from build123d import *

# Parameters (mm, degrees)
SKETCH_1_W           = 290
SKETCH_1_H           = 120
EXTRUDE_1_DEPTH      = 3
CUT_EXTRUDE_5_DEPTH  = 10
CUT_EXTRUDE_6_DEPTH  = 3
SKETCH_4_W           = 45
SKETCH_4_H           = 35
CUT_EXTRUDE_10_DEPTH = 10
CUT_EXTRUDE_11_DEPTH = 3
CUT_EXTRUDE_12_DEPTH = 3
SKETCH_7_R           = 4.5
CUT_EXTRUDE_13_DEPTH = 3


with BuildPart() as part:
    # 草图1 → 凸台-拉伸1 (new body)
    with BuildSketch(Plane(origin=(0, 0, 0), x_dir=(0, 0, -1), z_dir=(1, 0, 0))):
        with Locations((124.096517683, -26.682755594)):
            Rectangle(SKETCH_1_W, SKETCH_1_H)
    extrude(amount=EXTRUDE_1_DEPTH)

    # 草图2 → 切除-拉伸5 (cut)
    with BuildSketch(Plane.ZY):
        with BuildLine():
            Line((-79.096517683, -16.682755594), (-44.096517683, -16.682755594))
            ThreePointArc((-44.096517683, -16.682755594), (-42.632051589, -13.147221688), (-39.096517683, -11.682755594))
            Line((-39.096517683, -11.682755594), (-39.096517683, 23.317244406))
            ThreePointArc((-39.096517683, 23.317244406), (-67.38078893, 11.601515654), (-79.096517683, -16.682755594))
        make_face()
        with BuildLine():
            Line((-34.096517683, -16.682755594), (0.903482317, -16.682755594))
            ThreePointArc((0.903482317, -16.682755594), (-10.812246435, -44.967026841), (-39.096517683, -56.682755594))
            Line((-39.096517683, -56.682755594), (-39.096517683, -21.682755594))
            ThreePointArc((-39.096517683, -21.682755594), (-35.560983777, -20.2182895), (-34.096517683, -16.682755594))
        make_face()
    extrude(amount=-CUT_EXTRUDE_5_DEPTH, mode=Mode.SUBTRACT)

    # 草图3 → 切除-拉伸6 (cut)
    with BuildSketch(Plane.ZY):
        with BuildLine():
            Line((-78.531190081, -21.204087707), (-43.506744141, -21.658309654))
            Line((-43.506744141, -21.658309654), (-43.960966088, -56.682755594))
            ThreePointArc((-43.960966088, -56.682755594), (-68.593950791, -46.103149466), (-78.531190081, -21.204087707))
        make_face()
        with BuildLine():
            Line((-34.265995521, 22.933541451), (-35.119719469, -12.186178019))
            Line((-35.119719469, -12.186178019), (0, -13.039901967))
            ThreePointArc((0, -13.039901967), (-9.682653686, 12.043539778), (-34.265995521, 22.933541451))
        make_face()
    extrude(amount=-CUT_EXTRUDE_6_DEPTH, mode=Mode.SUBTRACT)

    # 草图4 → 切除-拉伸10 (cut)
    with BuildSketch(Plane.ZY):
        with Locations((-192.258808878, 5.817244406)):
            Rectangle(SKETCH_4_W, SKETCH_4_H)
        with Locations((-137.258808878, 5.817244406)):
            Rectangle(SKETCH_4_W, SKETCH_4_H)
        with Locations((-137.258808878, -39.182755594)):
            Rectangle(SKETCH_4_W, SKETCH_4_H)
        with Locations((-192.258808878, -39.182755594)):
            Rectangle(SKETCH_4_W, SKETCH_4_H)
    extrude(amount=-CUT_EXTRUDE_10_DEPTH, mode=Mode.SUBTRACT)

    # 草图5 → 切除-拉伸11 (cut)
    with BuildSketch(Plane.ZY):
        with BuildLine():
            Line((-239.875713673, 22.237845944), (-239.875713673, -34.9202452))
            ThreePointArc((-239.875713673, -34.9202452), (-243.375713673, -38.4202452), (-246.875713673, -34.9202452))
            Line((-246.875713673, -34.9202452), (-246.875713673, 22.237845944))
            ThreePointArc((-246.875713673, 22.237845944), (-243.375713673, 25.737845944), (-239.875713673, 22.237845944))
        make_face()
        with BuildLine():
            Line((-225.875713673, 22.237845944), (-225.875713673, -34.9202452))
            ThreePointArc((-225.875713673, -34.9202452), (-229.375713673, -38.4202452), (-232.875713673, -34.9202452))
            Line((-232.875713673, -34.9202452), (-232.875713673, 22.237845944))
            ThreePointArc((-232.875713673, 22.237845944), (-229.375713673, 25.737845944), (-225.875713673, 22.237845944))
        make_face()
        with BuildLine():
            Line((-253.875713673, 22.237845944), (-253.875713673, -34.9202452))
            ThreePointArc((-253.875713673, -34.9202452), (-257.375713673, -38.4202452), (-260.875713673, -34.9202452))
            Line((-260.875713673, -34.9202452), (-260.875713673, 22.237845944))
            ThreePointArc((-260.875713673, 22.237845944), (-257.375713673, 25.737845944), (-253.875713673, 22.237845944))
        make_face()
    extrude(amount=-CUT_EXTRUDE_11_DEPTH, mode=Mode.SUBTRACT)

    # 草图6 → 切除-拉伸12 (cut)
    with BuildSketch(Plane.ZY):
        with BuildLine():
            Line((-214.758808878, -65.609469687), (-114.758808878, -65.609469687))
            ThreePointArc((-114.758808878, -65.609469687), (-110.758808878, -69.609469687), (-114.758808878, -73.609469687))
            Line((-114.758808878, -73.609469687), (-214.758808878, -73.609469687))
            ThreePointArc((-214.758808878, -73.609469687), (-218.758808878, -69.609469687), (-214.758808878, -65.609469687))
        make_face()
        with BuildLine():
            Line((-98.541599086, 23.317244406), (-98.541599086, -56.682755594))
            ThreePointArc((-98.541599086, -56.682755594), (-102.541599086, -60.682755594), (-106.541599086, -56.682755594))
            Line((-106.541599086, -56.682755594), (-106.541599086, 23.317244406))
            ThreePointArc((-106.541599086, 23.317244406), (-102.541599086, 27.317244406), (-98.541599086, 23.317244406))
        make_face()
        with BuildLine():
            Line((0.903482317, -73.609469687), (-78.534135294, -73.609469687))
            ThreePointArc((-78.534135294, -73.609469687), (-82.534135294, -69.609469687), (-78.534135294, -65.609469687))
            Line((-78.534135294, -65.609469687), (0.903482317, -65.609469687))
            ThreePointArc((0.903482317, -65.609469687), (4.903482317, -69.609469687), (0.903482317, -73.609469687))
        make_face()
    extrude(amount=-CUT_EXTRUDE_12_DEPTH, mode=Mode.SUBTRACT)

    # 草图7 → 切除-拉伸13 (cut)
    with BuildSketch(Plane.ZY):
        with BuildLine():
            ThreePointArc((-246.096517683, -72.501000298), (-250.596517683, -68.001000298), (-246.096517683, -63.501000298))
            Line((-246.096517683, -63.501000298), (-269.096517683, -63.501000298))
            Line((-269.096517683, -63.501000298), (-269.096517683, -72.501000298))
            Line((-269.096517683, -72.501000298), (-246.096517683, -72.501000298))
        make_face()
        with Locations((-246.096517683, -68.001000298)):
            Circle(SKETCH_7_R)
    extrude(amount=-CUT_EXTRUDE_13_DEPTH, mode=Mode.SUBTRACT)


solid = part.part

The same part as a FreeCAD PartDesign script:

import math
import FreeCAD as App
import Part
import Sketcher


def add_polygon(sketch, points):
    """Adds a closed chain of lines whose ends are joined by coincident constraints."""
    first, n = sketch.GeometryCount, len(points)
    for a, b in zip(points, points[1:] + points[:1]):
        sketch.addGeometry(Part.LineSegment(App.Vector(*a, 0), App.Vector(*b, 0)), False)
    for i in range(n):
        sketch.addConstraint(Sketcher.Constraint("Coincident", first + i, 2, first + (i + 1) % n, 1))

doc = App.newDocument("Part")
params = doc.addObject("Spreadsheet::Sheet", "Params")
for row, (alias, value) in enumerate([
    ("sketch1_width", "120 mm"),
    ("sketch1_height", "290 mm"),
    ("pad1_length", "3 mm"),
    ("sketch2_radius", "5 mm"),
    ("sketch2_radius2", "40 mm"),
    ("pocket1_length", "10 mm"),
    ("pocket2_length", "3 mm"),
    ("sketch4_width", "35 mm"),
    ("sketch4_height", "45 mm"),
    ("pocket3_length", "10 mm"),
    ("sketch5_radius", "3.5 mm"),
    ("pocket4_length", "3 mm"),
    ("sketch6_radius", "4 mm"),
    ("sketch6_width", "80 mm"),
    ("sketch6_height", "100 mm"),
    ("pocket5_length", "3 mm"),
    ("sketch7_radius", "4.5 mm"),
    ("sketch7_height", "23 mm"),
    ("pocket6_length", "3 mm"),
], start=1):
    params.set(f"A{row}", alias)
    params.set(f"B{row}", "=" + value)
    params.setAlias(f"B{row}", alias)

body = doc.addObject("PartDesign::Body", "Body")

sketch1 = body.newObject("Sketcher::SketchObject", "Sketch")
sketch1.AttachmentSupport = (doc.getObject("YZ_Plane"), [""])
sketch1.MapMode = "FlatFace"
add_polygon(sketch1, [(33.317244, 20.903482), (-86.682756, 20.903482), (-86.682756, -269.096518), (33.317244, -269.096518)])
sketch1.addConstraint([
    Sketcher.Constraint("Horizontal", 0),
    Sketcher.Constraint("Vertical", 1),
    Sketcher.Constraint("Horizontal", 2),
    Sketcher.Constraint("Vertical", 3),
    Sketcher.Constraint("DistanceX", 0, 2, 0, 1, 120.0),
    Sketcher.Constraint("DistanceY", 1, 2, 1, 1, 290.0),
    Sketcher.Constraint("DistanceX", 0, 2, -1, 1, 86.682756),
    Sketcher.Constraint("DistanceY", -1, 1, 0, 2, 20.903482),
])
sketch1.setExpression("Constraints[8]", "Params.sketch1_width")
sketch1.setExpression("Constraints[9]", "Params.sketch1_height")
pad1 = body.newObject("PartDesign::Pad", "Pad")
pad1.Profile = sketch1
pad1.setExpression("Length", "Params.pad1_length")

sketch2 = body.newObject("Sketcher::SketchObject", "Sketch001")
sketch2.AttachmentSupport = (doc.getObject("YZ_Plane"), [""])
sketch2.MapMode = "FlatFace"
sketch2.addGeometry([
    Part.LineSegment(App.Vector(-16.682756, -79.096518, 0), App.Vector(-16.682756, -44.096518, 0)),
    Part.ArcOfCircle(Part.Circle(App.Vector(-16.682756, -39.096518, 0), App.Vector(0, 0, 1), 5), math.radians(-90), math.radians(0)),
    Part.LineSegment(App.Vector(-11.682756, -39.096518, 0), App.Vector(23.317244, -39.096518, 0)),
    Part.ArcOfCircle(Part.Circle(App.Vector(-16.682756, -39.096518, 0), App.Vector(0, 0, 1), 40), math.radians(-90), math.radians(0)),
    Part.LineSegment(App.Vector(-16.682756, 0.903482, 0), App.Vector(-16.682756, -34.096518, 0)),
    Part.ArcOfCircle(Part.Circle(App.Vector(-16.682756, -39.096518, 0), App.Vector(0, 0, 1), 5), math.radians(90), math.radians(180)),
    Part.LineSegment(App.Vector(-21.682756, -39.096518, 0), App.Vector(-56.682756, -39.096518, 0)),
    Part.ArcOfCircle(Part.Circle(App.Vector(-16.682756, -39.096518, 0), App.Vector(0, 0, 1), 40), math.radians(90), math.radians(180)),
], False)
sketch2.addConstraint([
    Sketcher.Constraint("Coincident", 0, 2, 1, 1),
    Sketcher.Constraint("Coincident", 1, 2, 2, 1),
    Sketcher.Constraint("Coincident", 2, 2, 3, 2),
    Sketcher.Constraint("Coincident", 3, 1, 0, 1),
    Sketcher.Constraint("Coincident", 4, 2, 5, 1),
    Sketcher.Constraint("Coincident", 5, 2, 6, 1),
    Sketcher.Constraint("Coincident", 6, 2, 7, 2),
    Sketcher.Constraint("Coincident", 7, 1, 4, 1),
    Sketcher.Constraint("Vertical", 0),
    Sketcher.Constraint("Horizontal", 2),
    Sketcher.Constraint("Vertical", 4),
    Sketcher.Constraint("Horizontal", 6),
    Sketcher.Constraint("Coincident", 3, 3, 1, 3),
    Sketcher.Constraint("Coincident", 5, 3, 1, 3),
    Sketcher.Constraint("Coincident", 7, 3, 1, 3),
    Sketcher.Constraint("Equal", 1, 5),
    Sketcher.Constraint("Equal", 3, 7),
    Sketcher.Constraint("Horizontal", 7, 3, 1, 2),
    Sketcher.Constraint("Horizontal", 2, 2, 5, 2),
    Sketcher.Constraint("Vertical", 7, 3, 0, 2),
    Sketcher.Constraint("Vertical", 3, 1, 4, 2),
    Sketcher.Constraint("Radius", 1, 5.0),
    Sketcher.Constraint("Radius", 3, 40.0),
    Sketcher.Constraint("DistanceX", 1, 3, -1, 1, 16.682756),
    Sketcher.Constraint("DistanceY", 1, 3, -1, 1, 39.096518),
])
sketch2.setExpression("Constraints[21]", "Params.sketch2_radius")
sketch2.setExpression("Constraints[22]", "Params.sketch2_radius2")
pocket1 = body.newObject("PartDesign::Pocket", "Pocket")
pocket1.Profile = sketch2
pocket1.setExpression("Length", "Params.pocket1_length")
pocket1.Reversed = True

sketch3 = body.newObject("Sketcher::SketchObject", "Sketch002")
sketch3.AttachmentSupport = (doc.getObject("YZ_Plane"), [""])
sketch3.MapMode = "FlatFace"
sketch3.addGeometry([
    Part.LineSegment(App.Vector(-21.65831, -43.506744, 0), App.Vector(-21.204088, -78.53119, 0)),
    Part.ArcOfCircle(Part.Circle(App.Vector(-21.65831, -43.506744, 0), App.Vector(0, 0, 1), 35.027391), math.radians(-179.256989), math.radians(-89.256989)),
    Part.LineSegment(App.Vector(-56.682756, -43.960966, 0), App.Vector(-21.65831, -43.506744, 0)),
    Part.LineSegment(App.Vector(22.933541, -34.265996, 0), App.Vector(-12.186178, -35.119719, 0)),
    Part.LineSegment(App.Vector(-12.186178, -35.119719, 0), App.Vector(-13.039902, 0, 0)),
    Part.ArcOfCircle(Part.Circle(App.Vector(-12.186178, -35.119719, 0), App.Vector(0, 0, 1), 35.130095), math.radians(1.392527), math.radians(91.392527)),
], False)
sketch3.addConstraint([
    Sketcher.Constraint("Coincident", 0, 2, 1, 2),
    Sketcher.Constraint("Coincident", 1, 1, 2, 1),
    Sketcher.Constraint("Coincident", 2, 2, 0, 1),
    Sketcher.Constraint("Coincident", 3, 2, 4, 1),
    Sketcher.Constraint("Coincident", 4, 2, 5, 2),
    Sketcher.Constraint("Coincident", 5, 1, 3, 1),
    Sketcher.Constraint("Coincident", 2, 2, 1, 3),
    Sketcher.Constraint("Coincident", 3, 2, 5, 3),
    Sketcher.Constraint("PointOnObject", 4, 2, -1),
    Sketcher.Constraint("Perpendicular", 0, 2),
    Sketcher.Constraint("Perpendicular", 3, 4),
    Sketcher.Constraint("Radius", 1, 35.027391),
    Sketcher.Constraint("Radius", 5, 35.130095),
    Sketcher.Constraint("DistanceX", 4, 2, -1, 1, 13.039902),
    Sketcher.Constraint("DistanceX", 1, 3, -1, 1, 21.65831),
    Sketcher.Constraint("DistanceX", 5, 3, -1, 1, 12.186178),
    Sketcher.Constraint("DistanceY", 0, 2, -1, 1, 78.53119),
    Sketcher.Constraint("DistanceX", 1, 3, 0, 2, 0.454222),
])
pocket2 = body.newObject("PartDesign::Pocket", "Pocket001")
pocket2.Profile = sketch3
pocket2.setExpression("Length", "Params.pocket2_length")
pocket2.Reversed = True

sketch4 = body.newObject("Sketcher::SketchObject", "Sketch003")
sketch4.AttachmentSupport = (doc.getObject("YZ_Plane"), [""])
sketch4.MapMode = "FlatFace"
add_polygon(sketch4, [(23.317244, -214.758809), (-11.682756, -214.758809), (-11.682756, -169.758809), (23.317244, -169.758809)])
add_polygon(sketch4, [(23.317244, -159.758809), (-11.682756, -159.758809), (-11.682756, -114.758809), (23.317244, -114.758809)])
add_polygon(sketch4, [(-21.682756, -159.758809), (-56.682756, -159.758809), (-56.682756, -114.758809), (-21.682756, -114.758809)])
add_polygon(sketch4, [(-21.682756, -214.758809), (-56.682756, -214.758809), (-56.682756, -169.758809), (-21.682756, -169.758809)])
sketch4.addConstraint([
    Sketcher.Constraint("Horizontal", 0),
    Sketcher.Constraint("Vertical", 1),
    Sketcher.Constraint("Horizontal", 2),
    Sketcher.Constraint("Vertical", 3),
    Sketcher.Constraint("Horizontal", 4),
    Sketcher.Constraint("Vertical", 5),
    Sketcher.Constraint("Horizontal", 6),
    Sketcher.Constraint("Vertical", 7),
    Sketcher.Constraint("Horizontal", 8),
    Sketcher.Constraint("Vertical", 9),
    Sketcher.Constraint("Horizontal", 10),
    Sketcher.Constraint("Vertical", 11),
    Sketcher.Constraint("Horizontal", 12),
    Sketcher.Constraint("Vertical", 13),
    Sketcher.Constraint("Horizontal", 14),
    Sketcher.Constraint("Vertical", 15),
    Sketcher.Constraint("Horizontal", 7, 2, 8, 2),
    Sketcher.Constraint("Horizontal", 6, 2, 9, 2),
    Sketcher.Constraint("Horizontal", 3, 2, 12, 2),
    Sketcher.Constraint("Horizontal", 2, 2, 13, 2),
    Sketcher.Constraint("Vertical", 1, 2, 4, 2),
    Sketcher.Constraint("Vertical", 3, 2, 6, 2),
    Sketcher.Constraint("Vertical", 9, 2, 12, 2),
    Sketcher.Constraint("Vertical", 11, 2, 14, 2),
    Sketcher.Constraint("Equal", 6, 8),
    Sketcher.Constraint("Equal", 3, 5),
    Sketcher.Constraint("DistanceX", 0, 2, 0, 1, 35.0),
    Sketcher.Constraint("DistanceY", 1, 1, 1, 2, 45.0),
    Sketcher.Constraint("DistanceY", 1, 2, 4, 2, 10.0),
    Sketcher.Constraint("DistanceX", 8, 2, 4, 2, 45.0),
    Sketcher.Constraint("DistanceY", 0, 2, -1, 1, 214.758809),
    Sketcher.Constraint("DistanceX", 0, 2, -1, 1, 11.682756),
])
sketch4.setExpression("Constraints[42]", "Params.sketch4_width")
sketch4.setExpression("Constraints[43]", "Params.sketch4_height")
pocket3 = body.newObject("PartDesign::Pocket", "Pocket002")
pocket3.Profile = sketch4
pocket3.setExpression("Length", "Params.pocket3_length")
pocket3.Reversed = True

sketch5 = body.newObject("Sketcher::SketchObject", "Sketch004")
sketch5.AttachmentSupport = (doc.getObject("YZ_Plane"), [""])
sketch5.MapMode = "FlatFace"
sketch5.addGeometry([
    Part.LineSegment(App.Vector(-34.920245, -239.875714, 0), App.Vector(22.237846, -239.875714, 0)),
    Part.ArcOfCircle(Part.Circle(App.Vector(22.237846, -243.375714, 0), App.Vector(0, 0, 1), 3.5), math.radians(-90), math.radians(90)),
    Part.LineSegment(App.Vector(22.237846, -246.875714, 0), App.Vector(-34.920245, -246.875714, 0)),
    Part.ArcOfCircle(Part.Circle(App.Vector(-34.920245, -243.375714, 0), App.Vector(0, 0, 1), 3.5), math.radians(90), math.radians(270)),
    Part.LineSegment(App.Vector(-34.920245, -225.875714, 0), App.Vector(22.237846, -225.875714, 0)),
    Part.ArcOfCircle(Part.Circle(App.Vector(22.237846, -229.375714, 0), App.Vector(0, 0, 1), 3.5), math.radians(-90), math.radians(90)),
    Part.LineSegment(App.Vector(22.237846, -232.875714, 0), App.Vector(-34.920245, -232.875714, 0)),
    Part.ArcOfCircle(Part.Circle(App.Vector(-34.920245, -229.375714, 0), App.Vector(0, 0, 1), 3.5), math.radians(90), math.radians(270)),
    Part.LineSegment(App.Vector(-34.920245, -253.875714, 0), App.Vector(22.237846, -253.875714, 0)),
    Part.ArcOfCircle(Part.Circle(App.Vector(22.237846, -257.375714, 0), App.Vector(0, 0, 1), 3.5), math.radians(-90), math.radians(90)),
    Part.LineSegment(App.Vector(22.237846, -260.875714, 0), App.Vector(-34.920245, -260.875714, 0)),
    Part.ArcOfCircle(Part.Circle(App.Vector(-34.920245, -257.375714, 0), App.Vector(0, 0, 1), 3.5), math.radians(90), math.radians(270)),
], False)
sketch5.addConstraint([
    Sketcher.Constraint("Tangent", 0, 2, 1, 2),
    Sketcher.Constraint("Tangent", 1, 1, 2, 1),
    Sketcher.Constraint("Tangent", 2, 2, 3, 2),
    Sketcher.Constraint("Tangent", 3, 1, 0, 1),
    Sketcher.Constraint("Tangent", 4, 2, 5, 2),
    Sketcher.Constraint("Tangent", 5, 1, 6, 1),
    Sketcher.Constraint("Tangent", 6, 2, 7, 2),
    Sketcher.Constraint("Tangent", 7, 1, 4, 1),
    Sketcher.Constraint("Tangent", 8, 2, 9, 2),
    Sketcher.Constraint("Tangent", 9, 1, 10, 1),
    Sketcher.Constraint("Tangent", 10, 2, 11, 2),
    Sketcher.Constraint("Tangent", 11, 1, 8, 1),
    Sketcher.Constraint("Horizontal", 0),
    Sketcher.Constraint("Horizontal", 2),
    Sketcher.Constraint("Horizontal", 4),
    Sketcher.Constraint("Horizontal", 6),
    Sketcher.Constraint("Horizontal", 8),
    Sketcher.Constraint("Horizontal", 10),
    Sketcher.Constraint("Equal", 3, 5),
    Sketcher.Constraint("Equal", 7, 9),
    Sketcher.Constraint("Vertical", 1, 3, 5, 3),
    Sketcher.Constraint("Vertical", 3, 3, 7, 3),
    Sketcher.Constraint("Vertical", 5, 3, 9, 3),
    Sketcher.Constraint("Vertical", 7, 3, 11, 3),
    Sketcher.Constraint("Radius", 1, 3.5),
    Sketcher.Constraint("DistanceY", 1, 3, 5, 3, 14.0),
    Sketcher.Constraint("DistanceY", 9, 3, 1, 3, 14.0),
    Sketcher.Constraint("DistanceX", 0, 1, 0, 2, 57.158091),
    Sketcher.Constraint("DistanceX", -1, 1, 1, 3, 22.237846),
    Sketcher.Constraint("DistanceY", 1, 3, -1, 1, 243.375714),
])
sketch5.setExpression("Constraints[24]", "Params.sketch5_radius")
pocket4 = body.newObject("PartDesign::Pocket", "Pocket003")
pocket4.Profile = sketch5
pocket4.setExpression("Length", "Params.pocket4_length")
pocket4.Reversed = True

sketch6 = body.newObject("Sketcher::SketchObject", "Sketch005")
sketch6.AttachmentSupport = (doc.getObject("YZ_Plane"), [""])
sketch6.MapMode = "FlatFace"
sketch6.addGeometry([
    Part.LineSegment(App.Vector(-65.60947, -114.758809, 0), App.Vector(-65.60947, -214.758809, 0)),
    Part.ArcOfCircle(Part.Circle(App.Vector(-69.60947, -214.758809, 0), App.Vector(0, 0, 1), 4), math.radians(180), math.radians(360)),
    Part.LineSegment(App.Vector(-73.60947, -214.758809, 0), App.Vector(-73.60947, -114.758809, 0)),
    Part.ArcOfCircle(Part.Circle(App.Vector(-69.60947, -114.758809, 0), App.Vector(0, 0, 1), 4), math.radians(0), math.radians(180)),
    Part.LineSegment(App.Vector(-56.682756, -98.541599, 0), App.Vector(23.317244, -98.541599, 0)),
    Part.ArcOfCircle(Part.Circle(App.Vector(23.317244, -102.541599, 0), App.Vector(0, 0, 1), 4), math.radians(-90), math.radians(90)),
    Part.LineSegment(App.Vector(23.317244, -106.541599, 0), App.Vector(-56.682756, -106.541599, 0)),
    Part.ArcOfCircle(Part.Circle(App.Vector(-56.682756, -102.541599, 0), App.Vector(0, 0, 1), 4), math.radians(90), math.radians(270)),
    Part.LineSegment(App.Vector(-73.60947, -78.534135, 0), App.Vector(-73.60947, 0.903482, 0)),
    Part.ArcOfCircle(Part.Circle(App.Vector(-69.60947, 0.903482, 0), App.Vector(0, 0, 1), 4), math.radians(0), math.radians(180)),
    Part.LineSegment(App.Vector(-65.60947, 0.903482, 0), App.Vector(-65.60947, -78.534135, 0)),
    Part.ArcOfCircle(Part.Circle(App.Vector(-69.60947, -78.534135, 0), App.Vector(0, 0, 1), 4), math.radians(180), math.radians(360)),
], False)
sketch6.addConstraint([
    Sketcher.Constraint("Tangent", 0, 2, 1, 2),
    Sketcher.Constraint("Tangent", 1, 1, 2, 1),
    Sketcher.Constraint("Tangent", 2, 2, 3, 2),
    Sketcher.Constraint("Tangent", 3, 1, 0, 1),
    Sketcher.Constraint("Tangent", 4, 2, 5, 2),
    Sketcher.Constraint("Tangent", 5, 1, 6, 1),
    Sketcher.Constraint("Tangent", 6, 2, 7, 2),
    Sketcher.Constraint("Tangent", 7, 1, 4, 1),
    Sketcher.Constraint("Tangent", 8, 2, 9, 2),
    Sketcher.Constraint("Tangent", 9, 1, 10, 1),
    Sketcher.Constraint("Tangent", 10, 2, 11, 2),
    Sketcher.Constraint("Tangent", 11, 1, 8, 1),
    Sketcher.Constraint("Vertical", 0),
    Sketcher.Constraint("Vertical", 2),
    Sketcher.Constraint("Horizontal", 4),
    Sketcher.Constraint("Horizontal", 6),
    Sketcher.Constraint("Vertical", 8),
    Sketcher.Constraint("Vertical", 10),
    Sketcher.Constraint("Equal", 3, 5),
    Sketcher.Constraint("Equal", 7, 9),
    Sketcher.Constraint("Vertical", 3, 3, 9, 3),
    Sketcher.Constraint("Radius", 1, 4.0),
    Sketcher.Constraint("DistanceX", 4, 1, 4, 2, 80.0),
    Sketcher.Constraint("DistanceY", 0, 2, 0, 1, 100.0),
    Sketcher.Constraint("DistanceY", 5, 3, -1, 1, 102.541599),
    Sketcher.Constraint("DistanceY", 8, 1, 8, 2, 79.437618),
    Sketcher.Constraint("DistanceX", 1, 3, -1, 1, 69.60947),
    Sketcher.Constraint("DistanceY", 1, 3, -1, 1, 214.758809),
    Sketcher.Constraint("DistanceY", 7, 3, 9, 3, 103.445081),
    Sketcher.Constraint("DistanceX", -1, 1, 5, 3, 23.317244),
])
sketch6.setExpression("Constraints[21]", "Params.sketch6_radius")
sketch6.setExpression("Constraints[22]", "Params.sketch6_width")
sketch6.setExpression("Constraints[23]", "Params.sketch6_height")
pocket5 = body.newObject("PartDesign::Pocket", "Pocket004")
pocket5.Profile = sketch6
pocket5.setExpression("Length", "Params.pocket5_length")
pocket5.Reversed = True

sketch7 = body.newObject("Sketcher::SketchObject", "Sketch006")
sketch7.AttachmentSupport = (doc.getObject("YZ_Plane"), [""])
sketch7.MapMode = "FlatFace"
sketch7.addGeometry([
    Part.LineSegment(App.Vector(-63.501, -246.096518, 0), App.Vector(-63.501, -269.096518, 0)),
    Part.LineSegment(App.Vector(-63.501, -269.096518, 0), App.Vector(-72.501, -269.096518, 0)),
    Part.LineSegment(App.Vector(-72.501, -269.096518, 0), App.Vector(-72.501, -246.096518, 0)),
    Part.ArcOfCircle(Part.Circle(App.Vector(-68.001, -246.096518, 0), App.Vector(0, 0, 1), 4.5), math.radians(0), math.radians(180)),
], False)
sketch7.addConstraint([
    Sketcher.Constraint("Coincident", 0, 2, 1, 1),
    Sketcher.Constraint("Coincident", 1, 2, 2, 1),
    Sketcher.Constraint("Tangent", 2, 2, 3, 2),
    Sketcher.Constraint("Tangent", 3, 1, 0, 1),
    Sketcher.Constraint("Vertical", 0),
    Sketcher.Constraint("Horizontal", 1),
    Sketcher.Constraint("Vertical", 2),
    Sketcher.Constraint("Radius", 3, 4.5),
    Sketcher.Constraint("DistanceY", 0, 2, 0, 1, 23.0),
    Sketcher.Constraint("DistanceX", 3, 3, -1, 1, 68.001),
    Sketcher.Constraint("DistanceY", 3, 3, -1, 1, 246.096518),
])
sketch7.setExpression("Constraints[7]", "Params.sketch7_radius")
sketch7.setExpression("Constraints[8]", "Params.sketch7_height")
pocket6 = body.newObject("PartDesign::Pocket", "Pocket005")
pocket6.Profile = sketch7
pocket6.setExpression("Length", "Params.pocket6_length")
pocket6.Reversed = True

doc.recompute()
